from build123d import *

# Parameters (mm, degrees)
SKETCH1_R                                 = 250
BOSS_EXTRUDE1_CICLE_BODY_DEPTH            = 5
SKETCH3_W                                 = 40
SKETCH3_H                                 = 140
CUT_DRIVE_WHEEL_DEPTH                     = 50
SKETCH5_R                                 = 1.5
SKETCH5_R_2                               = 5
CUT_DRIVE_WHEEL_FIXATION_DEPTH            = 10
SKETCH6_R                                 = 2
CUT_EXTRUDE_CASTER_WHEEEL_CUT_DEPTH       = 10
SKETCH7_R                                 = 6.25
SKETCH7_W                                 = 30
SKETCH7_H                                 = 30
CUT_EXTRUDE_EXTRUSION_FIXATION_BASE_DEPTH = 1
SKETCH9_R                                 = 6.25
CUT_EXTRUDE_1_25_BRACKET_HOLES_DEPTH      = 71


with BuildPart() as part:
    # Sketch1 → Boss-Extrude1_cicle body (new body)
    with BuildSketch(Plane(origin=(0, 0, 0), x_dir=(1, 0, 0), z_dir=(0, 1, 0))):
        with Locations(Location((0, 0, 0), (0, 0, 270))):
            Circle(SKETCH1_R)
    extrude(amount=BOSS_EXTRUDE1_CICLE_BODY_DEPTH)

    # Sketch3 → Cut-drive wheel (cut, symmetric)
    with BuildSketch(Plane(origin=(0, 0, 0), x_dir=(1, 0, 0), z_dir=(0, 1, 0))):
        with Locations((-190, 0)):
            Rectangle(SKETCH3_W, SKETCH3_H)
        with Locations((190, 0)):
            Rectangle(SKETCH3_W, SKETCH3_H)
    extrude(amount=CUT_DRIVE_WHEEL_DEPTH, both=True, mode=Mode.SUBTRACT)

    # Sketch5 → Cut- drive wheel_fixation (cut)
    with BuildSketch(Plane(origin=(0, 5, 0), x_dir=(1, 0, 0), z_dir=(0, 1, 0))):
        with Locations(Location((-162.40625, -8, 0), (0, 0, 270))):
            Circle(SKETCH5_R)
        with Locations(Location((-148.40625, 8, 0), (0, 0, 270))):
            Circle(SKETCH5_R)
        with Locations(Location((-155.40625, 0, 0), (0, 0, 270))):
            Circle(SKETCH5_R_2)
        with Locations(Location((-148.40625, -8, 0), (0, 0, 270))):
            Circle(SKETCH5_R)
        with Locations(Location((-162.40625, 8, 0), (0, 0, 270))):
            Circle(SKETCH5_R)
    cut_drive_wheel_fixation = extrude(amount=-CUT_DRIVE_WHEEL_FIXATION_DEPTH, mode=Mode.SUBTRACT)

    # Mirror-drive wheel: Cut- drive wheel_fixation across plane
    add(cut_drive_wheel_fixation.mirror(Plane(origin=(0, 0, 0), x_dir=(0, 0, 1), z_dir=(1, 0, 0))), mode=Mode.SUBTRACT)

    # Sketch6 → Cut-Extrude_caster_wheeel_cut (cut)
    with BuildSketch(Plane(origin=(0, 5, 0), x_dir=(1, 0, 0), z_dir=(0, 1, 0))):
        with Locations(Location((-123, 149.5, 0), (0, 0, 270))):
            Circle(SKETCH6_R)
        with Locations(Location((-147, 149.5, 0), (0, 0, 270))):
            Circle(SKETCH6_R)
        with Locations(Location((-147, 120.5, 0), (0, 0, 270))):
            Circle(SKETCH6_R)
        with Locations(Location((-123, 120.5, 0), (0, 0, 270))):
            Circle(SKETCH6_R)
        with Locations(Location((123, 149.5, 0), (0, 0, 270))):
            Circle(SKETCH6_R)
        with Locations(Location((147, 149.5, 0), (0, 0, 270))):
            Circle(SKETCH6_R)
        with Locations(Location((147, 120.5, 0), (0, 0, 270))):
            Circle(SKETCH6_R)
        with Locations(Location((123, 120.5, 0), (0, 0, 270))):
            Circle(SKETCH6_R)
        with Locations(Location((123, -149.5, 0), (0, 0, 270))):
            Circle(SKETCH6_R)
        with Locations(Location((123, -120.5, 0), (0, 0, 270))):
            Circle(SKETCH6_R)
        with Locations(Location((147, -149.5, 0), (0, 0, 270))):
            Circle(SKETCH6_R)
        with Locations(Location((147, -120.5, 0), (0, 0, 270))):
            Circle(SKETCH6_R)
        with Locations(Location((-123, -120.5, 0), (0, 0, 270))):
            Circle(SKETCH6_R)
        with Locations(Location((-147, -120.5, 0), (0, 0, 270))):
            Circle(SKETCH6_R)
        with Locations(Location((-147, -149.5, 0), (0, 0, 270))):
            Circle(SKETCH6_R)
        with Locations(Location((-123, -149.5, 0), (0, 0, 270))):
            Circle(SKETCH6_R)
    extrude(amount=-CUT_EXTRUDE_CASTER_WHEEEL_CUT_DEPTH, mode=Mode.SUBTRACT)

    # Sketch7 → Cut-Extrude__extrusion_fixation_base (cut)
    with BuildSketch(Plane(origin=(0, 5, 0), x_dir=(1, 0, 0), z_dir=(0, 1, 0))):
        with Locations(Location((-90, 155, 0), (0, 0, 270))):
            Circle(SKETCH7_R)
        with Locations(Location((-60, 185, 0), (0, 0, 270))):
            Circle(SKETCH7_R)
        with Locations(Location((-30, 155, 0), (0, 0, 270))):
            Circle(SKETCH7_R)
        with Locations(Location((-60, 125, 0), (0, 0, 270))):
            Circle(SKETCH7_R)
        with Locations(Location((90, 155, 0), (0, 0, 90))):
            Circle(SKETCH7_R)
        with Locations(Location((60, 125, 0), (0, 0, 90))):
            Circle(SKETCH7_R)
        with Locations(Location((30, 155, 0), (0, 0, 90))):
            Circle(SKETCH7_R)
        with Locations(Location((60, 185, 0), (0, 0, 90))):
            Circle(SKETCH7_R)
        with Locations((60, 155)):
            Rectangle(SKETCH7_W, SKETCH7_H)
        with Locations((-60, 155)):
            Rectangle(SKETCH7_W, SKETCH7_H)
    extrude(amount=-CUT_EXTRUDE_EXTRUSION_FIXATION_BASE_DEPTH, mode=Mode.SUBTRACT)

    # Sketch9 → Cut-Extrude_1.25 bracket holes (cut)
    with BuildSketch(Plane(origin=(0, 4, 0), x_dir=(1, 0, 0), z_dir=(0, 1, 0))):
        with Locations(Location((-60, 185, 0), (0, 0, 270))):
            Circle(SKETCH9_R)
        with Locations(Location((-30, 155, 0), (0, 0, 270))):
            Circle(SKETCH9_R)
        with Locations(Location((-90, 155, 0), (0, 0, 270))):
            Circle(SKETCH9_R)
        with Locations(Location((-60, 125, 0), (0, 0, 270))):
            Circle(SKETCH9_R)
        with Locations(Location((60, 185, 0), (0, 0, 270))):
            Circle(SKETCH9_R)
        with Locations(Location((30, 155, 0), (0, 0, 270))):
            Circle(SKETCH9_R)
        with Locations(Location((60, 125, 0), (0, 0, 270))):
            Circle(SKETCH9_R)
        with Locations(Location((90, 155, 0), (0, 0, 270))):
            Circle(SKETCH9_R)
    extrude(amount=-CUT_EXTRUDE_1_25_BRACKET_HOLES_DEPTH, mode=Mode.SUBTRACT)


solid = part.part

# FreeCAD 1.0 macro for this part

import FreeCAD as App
import Part
import Sketcher
from FreeCAD import Vector
Q = App.Units.Quantity


def add_polygon(sketch, points):
    """Adds a closed chain of lines whose ends are joined by coincident constraints."""
    first, n = sketch.GeometryCount, len(points)
    for a, b in zip(points, points[1:] + points[:1]):
        sketch.addGeometry(Part.LineSegment(App.Vector(*a, 0), App.Vector(*b, 0)), False)
    for i in range(n):
        sketch.addConstraint(Sketcher.Constraint("Coincident", first + i, 2, first + (i + 1) % n, 1))

doc = App.newDocument("Part")
params = doc.addObject("Spreadsheet::Sheet", "Params")
for row, (alias, value) in enumerate([
    ("sketch1_diameter", "500 mm"),
    ("pad1_length", "5 mm"),
    ("sketch2_width", "40 mm"),
    ("sketch2_height", "140 mm"),
    ("pocket1_length", "100 mm"),
    ("sketch3_diameter", "3 mm"),
    ("sketch3_diameter2", "10 mm"),
    ("pocket2_length", "10 mm"),
    ("sketch4_diameter", "4 mm"),
    ("pocket3_length", "10 mm"),
    ("sketch5_diameter", "12.5 mm"),
    ("sketch5_width", "30 mm"),
    ("pocket4_length", "1 mm"),
    ("sketch6_diameter", "12.5 mm"),
    ("pocket5_length", "71 mm"),
], start=1):
    params.set(f"A{row}", alias)
    params.set(f"B{row}", "=" + value)
    params.setAlias(f"B{row}", alias)

body = doc.addObject("PartDesign::Body", "Body")

# Sketch on XZ plane
sketch1 = body.newObject("Sketcher::SketchObject", "Sketch")
sketch1.AttachmentSupport = (doc.getObject("XZ_Plane"), [""])
sketch1.MapMode = "FlatFace"
sketch1.addGeometry(Part.Circle(Vector(0, 0, 0), Vector(0, 0, 1), 250), False)
sketch1.addConstraint([
    Sketcher.Constraint("Coincident", 0, 3, -1, 1),
    Sketcher.Constraint("Diameter", 0, Q("500 mm")),
])
sketch1.setExpression("Constraints[1]", "Params.sketch1_diameter")
pad1 = body.newObject("PartDesign::Pad", "Pad")
pad1.Profile = sketch1
pad1.setExpression("Length", "Params.pad1_length")
pad1.Reversed = True

# Sketch on XZ plane
sketch2 = body.newObject("Sketcher::SketchObject", "Sketch001")
sketch2.AttachmentSupport = (doc.getObject("XZ_Plane"), [""])
sketch2.MapMode = "FlatFace"
add_polygon(sketch2, [(-210, -70), (-210, 70), (-170, 70), (-170, -70)])  # lines 0-3
add_polygon(sketch2, [(170, -70), (170, 70), (210, 70), (210, -70)])  # lines 4-7
sketch2.addConstraint([
    Sketcher.Constraint("Vertical", 0),
    Sketcher.Constraint("Horizontal", 1),
    Sketcher.Constraint("Vertical", 2),
    Sketcher.Constraint("Horizontal", 3),
    Sketcher.Constraint("Vertical", 4),
    Sketcher.Constraint("Horizontal", 5),
    Sketcher.Constraint("Vertical", 6),
    Sketcher.Constraint("Horizontal", 7),
    Sketcher.Constraint("Symmetric", 2, 2, 4, 2, -1, 1),
    Sketcher.Constraint("Symmetric", 0, 2, 6, 2, -1, 1),
    Sketcher.Constraint("Horizontal", 1, 2, 4, 2),
    Sketcher.Constraint("DistanceX", 1, 1, 1, 2, Q("40 mm")),
    Sketcher.Constraint("DistanceY", 0, 1, 0, 2, Q("140 mm")),
    Sketcher.Constraint("DistanceX", 0, 2, -1, 1, Q("210 mm")),
])
sketch2.setExpression("Constraints[19]", "Params.sketch2_width")
sketch2.setExpression("Constraints[20]", "Params.sketch2_height")
pocket1 = body.newObject("PartDesign::Pocket", "Pocket")
pocket1.Profile = sketch2
pocket1.setExpression("Length", "Params.pocket1_length")
pocket1.Midplane = True

# Sketch on XZ plane
sketch3 = body.newObject("Sketcher::SketchObject", "Sketch002")
sketch3.AttachmentSupport = (doc.getObject("XZ_Plane"), [""])
sketch3.MapMode = "FlatFace"
sketch3.AttachmentOffset = App.Placement(Vector(0, 0, -5), App.Rotation())
sketch3.addGeometry([
    Part.Circle(Vector(-162.4, 8, 0), Vector(0, 0, 1), 1.5),  # 0
    Part.Circle(Vector(-148.4, -8, 0), Vector(0, 0, 1), 1.5),  # 1
    Part.Circle(Vector(-155.4, 0, 0), Vector(0, 0, 1), 5),  # 2
    Part.Circle(Vector(-148.4, 8, 0), Vector(0, 0, 1), 1.5),  # 3
    Part.Circle(Vector(-162.4, -8, 0), Vector(0, 0, 1), 1.5),  # 4
], False)
sketch3.addConstraint([
    Sketcher.Constraint("Equal", 0, 1),
    Sketcher.Constraint("Equal", 1, 3),
    Sketcher.Constraint("Equal", 3, 4),
    Sketcher.Constraint("Symmetric", 1, 3, 3, 3, -1),
    Sketcher.Constraint("Symmetric", 0, 3, 4, 3, -1),
    Sketcher.Constraint("PointOnObject", 2, 3, -1),
    Sketcher.Constraint("Horizontal", 0, 3, 3, 3),
    Sketcher.Constraint("Diameter", 0, Q("3 mm")),
    Sketcher.Constraint("Diameter", 2, Q("10 mm")),
    Sketcher.Constraint("DistanceY", -1, 1, 0, 3, Q("8 mm")),
    Sketcher.Constraint("DistanceX", 0, 3, 1, 3, Q("14 mm")),
    Sketcher.Constraint("DistanceX", 0, 3, 2, 3, Q("7 mm")),
    Sketcher.Constraint("DistanceX", 0, 3, -1, 1, Q("162.40625 mm")),
])
sketch3.setExpression("Constraints[7]", "Params.sketch3_diameter")
sketch3.setExpression("Constraints[8]", "Params.sketch3_diameter2")
pocket2 = body.newObject("PartDesign::Pocket", "Pocket001")
pocket2.Profile = sketch3
pocket2.setExpression("Length", "Params.pocket2_length")
pocket2.Reversed = True
doc.recompute()

mirrored = body.newObject("PartDesign::Mirrored", "Mirrored")
mirrored.Originals = [pocket2]
mirrored.MirrorPlane = (doc.getObject("YZ_Plane"), [""])
body.Tip = mirrored

# Sketch on XZ plane
sketch4 = body.newObject("Sketcher::SketchObject", "Sketch003")
sketch4.AttachmentSupport = (doc.getObject("XZ_Plane"), [""])
sketch4.MapMode = "FlatFace"
sketch4.AttachmentOffset = App.Placement(Vector(0, 0, -5), App.Rotation())
sketch4.addGeometry([
    Part.Circle(Vector(-123, -149.5, 0), Vector(0, 0, 1), 2),  # 0
    Part.Circle(Vector(-147, -149.5, 0), Vector(0, 0, 1), 2),  # 1
    Part.Circle(Vector(-147, -120.5, 0), Vector(0, 0, 1), 2),  # 2
    Part.Circle(Vector(-123, -120.5, 0), Vector(0, 0, 1), 2),  # 3
    Part.Circle(Vector(123, -149.5, 0), Vector(0, 0, 1), 2),  # 4
    Part.Circle(Vector(147, -149.5, 0), Vector(0, 0, 1), 2),  # 5
    Part.Circle(Vector(147, -120.5, 0), Vector(0, 0, 1), 2),  # 6
    Part.Circle(Vector(123, -120.5, 0), Vector(0, 0, 1), 2),  # 7
    Part.Circle(Vector(123, 149.5, 0), Vector(0, 0, 1), 2),  # 8
    Part.Circle(Vector(123, 120.5, 0), Vector(0, 0, 1), 2),  # 9
    Part.Circle(Vector(147, 149.5, 0), Vector(0, 0, 1), 2),  # 10
    Part.Circle(Vector(147, 120.5, 0), Vector(0, 0, 1), 2),  # 11
    Part.Circle(Vector(-123, 120.5, 0), Vector(0, 0, 1), 2),  # 12
    Part.Circle(Vector(-147, 120.5, 0), Vector(0, 0, 1), 2),  # 13
    Part.Circle(Vector(-147, 149.5, 0), Vector(0, 0, 1), 2),  # 14
    Part.Circle(Vector(-123, 149.5, 0), Vector(0, 0, 1), 2),  # 15
], False)
sketch4.addConstraint([
    Sketcher.Constraint("Equal", 0, 1),
    Sketcher.Constraint("Equal", 1, 2),
    Sketcher.Constraint("Equal", 2, 3),
    Sketcher.Constraint("Equal", 3, 4),
    Sketcher.Constraint("Equal", 4, 5),
    Sketcher.Constraint("Equal", 5, 6),
    Sketcher.Constraint("Equal", 6, 7),
    Sketcher.Constraint("Equal", 7, 8),
    Sketcher.Constraint("Equal", 8, 9),
    Sketcher.Constraint("Equal", 9, 10),
    Sketcher.Constraint("Equal", 10, 11),
    Sketcher.Constraint("Equal", 11, 12),
    Sketcher.Constraint("Equal", 12, 13),
    Sketcher.Constraint("Equal", 13, 14),
    Sketcher.Constraint("Equal", 14, 15),
    Sketcher.Constraint("Symmetric", 0, 3, 8, 3, -1, 1),
    Sketcher.Constraint("Symmetric", 3, 3, 9, 3, -1, 1),
    Sketcher.Constraint("Symmetric", 1, 3, 10, 3, -1, 1),
    Sketcher.Constraint("Symmetric", 2, 3, 11, 3, -1, 1),
    Sketcher.Constraint("Symmetric", 7, 3, 12, 3, -1, 1),
    Sketcher.Constraint("Symmetric", 6, 3, 13, 3, -1, 1),
    Sketcher.Constraint("Symmetric", 5, 3, 14, 3, -1, 1),
    Sketcher.Constraint("Symmetric", 4, 3, 15, 3, -1, 1),
    Sketcher.Constraint("Symmetric", 0, 3, 4, 3, -2),
    Sketcher.Constraint("Symmetric", 1, 3, 5, 3, -2),
    Sketcher.Constraint("Symmetric", 2, 3, 6, 3, -2),
    Sketcher.Constraint("Symmetric", 3, 3, 7, 3, -2),
    Sketcher.Constraint("Horizontal", 0, 3, 1, 3),
    Sketcher.Constraint("Horizontal", 2, 3, 3, 3),
    Sketcher.Constraint("Vertical", 1, 3, 2, 3),
    Sketcher.Constraint("Vertical", 0, 3, 3, 3),
    Sketcher.Constraint("Diameter", 0, Q("4 mm")),
    Sketcher.Constraint("DistanceX", 0, 3, -1, 1, Q("123 mm")),
    Sketcher.Constraint("DistanceX", 1, 3, -1, 1, Q("147 mm")),
    Sketcher.Constraint("DistanceY", 1, 3, 2, 3, Q("29 mm")),
    Sketcher.Constraint("DistanceY", 7, 3, 8, 3, Q("270 mm")),
])
sketch4.setExpression("Constraints[31]", "Params.sketch4_diameter")
pocket3 = body.newObject("PartDesign::Pocket", "Pocket002")
pocket3.Profile = sketch4
pocket3.setExpression("Length", "Params.pocket3_length")
pocket3.Reversed = True

# Sketch on XZ plane
sketch5 = body.newObject("Sketcher::SketchObject", "Sketch004")
sketch5.AttachmentSupport = (doc.getObject("XZ_Plane"), [""])
sketch5.MapMode = "FlatFace"
sketch5.AttachmentOffset = App.Placement(Vector(0, 0, -5), App.Rotation())
sketch5.addGeometry(Part.Circle(Vector(-90, -155, 0), Vector(0, 0, 1), 6), False)  # 0
sketch5.addGeometry(Part.Circle(Vector(-60, -185, 0), Vector(0, 0, 1), 6), False)  # 1
sketch5.addGeometry(Part.Circle(Vector(-30, -155, 0), Vector(0, 0, 1), 6), False)  # 2
sketch5.addGeometry(Part.Circle(Vector(-60, -125, 0), Vector(0, 0, 1), 6), False)  # 3
sketch5.addGeometry(Part.Circle(Vector(90, -155, 0), Vector(0, 0, 1), 6), False)  # 4
sketch5.addGeometry(Part.Circle(Vector(60, -125, 0), Vector(0, 0, 1), 6), False)  # 5
sketch5.addGeometry(Part.Circle(Vector(30, -155, 0), Vector(0, 0, 1), 6), False)  # 6
sketch5.addGeometry(Part.Circle(Vector(60, -185, 0), Vector(0, 0, 1), 6), False)  # 7
add_polygon(sketch5, [(45, -170), (45, -140), (75, -140), (75, -170)])  # lines 8-11
add_polygon(sketch5, [(-75, -170), (-75, -140), (-45, -140), (-45, -170)])  # lines 12-15
sketch5.addConstraint([
    Sketcher.Constraint("Vertical", 8),
    Sketcher.Constraint("Horizontal", 9),
    Sketcher.Constraint("Vertical", 10),
    Sketcher.Constraint("Horizontal", 11),
    Sketcher.Constraint("Vertical", 12),
    Sketcher.Constraint("Horizontal", 13),
    Sketcher.Constraint("Vertical", 14),
    Sketcher.Constraint("Horizontal", 15),
    Sketcher.Constraint("Equal", 0, 1),
    Sketcher.Constraint("Equal", 1, 2),
    Sketcher.Constraint("Equal", 2, 3),
    Sketcher.Constraint("Equal", 3, 4),
    Sketcher.Constraint("Equal", 4, 5),
    Sketcher.Constraint("Equal", 5, 6),
    Sketcher.Constraint("Equal", 6, 7),
    Sketcher.Constraint("Symmetric", 0, 3, 4, 3, -2),
    Sketcher.Constraint("Symmetric", 3, 3, 5, 3, -2),
    Sketcher.Constraint("Symmetric", 2, 3, 6, 3, -2),
    Sketcher.Constraint("Symmetric", 1, 3, 7, 3, -2),
    Sketcher.Constraint("Symmetric", 9, 2, 12, 2, -2),
    Sketcher.Constraint("Symmetric", 11, 2, 14, 2, -2),
    Sketcher.Constraint("Horizontal", 0, 3, 2, 3),
    Sketcher.Constraint("Vertical", 1, 3, 3, 3),
    Sketcher.Constraint("Equal", 15, 8),
    Sketcher.Constraint("Diameter", 0, Q("12.5 mm")),
    Sketcher.Constraint("DistanceX", 9, 1, 9, 2, Q("30 mm")),
    Sketcher.Constraint("DistanceX", 0, 3, -1, 1, Q("90 mm")),
    Sketcher.Constraint("DistanceY", 0, 3, -1, 1, Q("155 mm")),
    Sketcher.Constraint("DistanceX", 1, 3, -1, 1, Q("60 mm")),
    Sketcher.Constraint("DistanceY", 1, 3, -1, 1, Q("185 mm")),
    Sketcher.Constraint("DistanceX", 2, 3, -1, 1, Q("30 mm")),
    Sketcher.Constraint("DistanceY", 3, 3, -1, 1, Q("125 mm")),
    Sketcher.Constraint("DistanceX", -1, 1, 8, 2, Q("45 mm")),
    Sketcher.Constraint("DistanceY", 8, 2, -1, 1, Q("140 mm")),
])
sketch5.setExpression("Constraints[32]", "Params.sketch5_diameter")
sketch5.setExpression("Constraints[33]", "Params.sketch5_width")
pocket4 = body.newObject("PartDesign::Pocket", "Pocket003")
pocket4.Profile = sketch5
pocket4.setExpression("Length", "Params.pocket4_length")
pocket4.Reversed = True

# Sketch on XZ plane
sketch6 = body.newObject("Sketcher::SketchObject", "Sketch005")
sketch6.AttachmentSupport = (doc.getObject("XZ_Plane"), [""])
sketch6.MapMode = "FlatFace"
sketch6.AttachmentOffset = App.Placement(Vector(0, 0, -4), App.Rotation())
sketch6.addGeometry([
    Part.Circle(Vector(-60, -185, 0), Vector(0, 0, 1), 6),  # 0
    Part.Circle(Vector(-30, -155, 0), Vector(0, 0, 1), 6),  # 1
    Part.Circle(Vector(-90, -155, 0), Vector(0, 0, 1), 6),  # 2
    Part.Circle(Vector(-60, -125, 0), Vector(0, 0, 1), 6),  # 3
    Part.Circle(Vector(60, -185, 0), Vector(0, 0, 1), 6),  # 4
    Part.Circle(Vector(30, -155, 0), Vector(0, 0, 1), 6),  # 5
    Part.Circle(Vector(60, -125, 0), Vector(0, 0, 1), 6),  # 6
    Part.Circle(Vector(90, -155, 0), Vector(0, 0, 1), 6),  # 7
], False)
sketch6.addConstraint([
    Sketcher.Constraint("Equal", 0, 1),
    Sketcher.Constraint("Equal", 1, 2),
    Sketcher.Constraint("Equal", 2, 3),
    Sketcher.Constraint("Equal", 3, 4),
    Sketcher.Constraint("Equal", 4, 5),
    Sketcher.Constraint("Equal", 5, 6),
    Sketcher.Constraint("Equal", 6, 7),
    Sketcher.Constraint("Symmetric", 0, 3, 4, 3, -2),
    Sketcher.Constraint("Symmetric", 1, 3, 5, 3, -2),
    Sketcher.Constraint("Symmetric", 3, 3, 6, 3, -2),
    Sketcher.Constraint("Symmetric", 2, 3, 7, 3, -2),
    Sketcher.Constraint("Horizontal", 1, 3, 2, 3),
    Sketcher.Constraint("Vertical", 0, 3, 3, 3),
    Sketcher.Constraint("Diameter", 0, Q("12.5 mm")),
    Sketcher.Constraint("DistanceX", 0, 3, -1, 1, Q("60 mm")),
    Sketcher.Constraint("DistanceY", 0, 3, -1, 1, Q("185 mm")),
    Sketcher.Constraint("DistanceX", 1, 3, -1, 1, Q("30 mm")),
    Sketcher.Constraint("DistanceY", 1, 3, -1, 1, Q("155 mm")),
    Sketcher.Constraint("DistanceX", 2, 3, -1, 1, Q("90 mm")),
    Sketcher.Constraint("DistanceY", 3, 3, -1, 1, Q("125 mm")),
])
sketch6.setExpression("Constraints[13]", "Params.sketch6_diameter")
pocket5 = body.newObject("PartDesign::Pocket", "Pocket004")
pocket5.Profile = sketch6
pocket5.setExpression("Length", "Params.pocket5_length")
pocket5.Reversed = True

doc.recompute()
